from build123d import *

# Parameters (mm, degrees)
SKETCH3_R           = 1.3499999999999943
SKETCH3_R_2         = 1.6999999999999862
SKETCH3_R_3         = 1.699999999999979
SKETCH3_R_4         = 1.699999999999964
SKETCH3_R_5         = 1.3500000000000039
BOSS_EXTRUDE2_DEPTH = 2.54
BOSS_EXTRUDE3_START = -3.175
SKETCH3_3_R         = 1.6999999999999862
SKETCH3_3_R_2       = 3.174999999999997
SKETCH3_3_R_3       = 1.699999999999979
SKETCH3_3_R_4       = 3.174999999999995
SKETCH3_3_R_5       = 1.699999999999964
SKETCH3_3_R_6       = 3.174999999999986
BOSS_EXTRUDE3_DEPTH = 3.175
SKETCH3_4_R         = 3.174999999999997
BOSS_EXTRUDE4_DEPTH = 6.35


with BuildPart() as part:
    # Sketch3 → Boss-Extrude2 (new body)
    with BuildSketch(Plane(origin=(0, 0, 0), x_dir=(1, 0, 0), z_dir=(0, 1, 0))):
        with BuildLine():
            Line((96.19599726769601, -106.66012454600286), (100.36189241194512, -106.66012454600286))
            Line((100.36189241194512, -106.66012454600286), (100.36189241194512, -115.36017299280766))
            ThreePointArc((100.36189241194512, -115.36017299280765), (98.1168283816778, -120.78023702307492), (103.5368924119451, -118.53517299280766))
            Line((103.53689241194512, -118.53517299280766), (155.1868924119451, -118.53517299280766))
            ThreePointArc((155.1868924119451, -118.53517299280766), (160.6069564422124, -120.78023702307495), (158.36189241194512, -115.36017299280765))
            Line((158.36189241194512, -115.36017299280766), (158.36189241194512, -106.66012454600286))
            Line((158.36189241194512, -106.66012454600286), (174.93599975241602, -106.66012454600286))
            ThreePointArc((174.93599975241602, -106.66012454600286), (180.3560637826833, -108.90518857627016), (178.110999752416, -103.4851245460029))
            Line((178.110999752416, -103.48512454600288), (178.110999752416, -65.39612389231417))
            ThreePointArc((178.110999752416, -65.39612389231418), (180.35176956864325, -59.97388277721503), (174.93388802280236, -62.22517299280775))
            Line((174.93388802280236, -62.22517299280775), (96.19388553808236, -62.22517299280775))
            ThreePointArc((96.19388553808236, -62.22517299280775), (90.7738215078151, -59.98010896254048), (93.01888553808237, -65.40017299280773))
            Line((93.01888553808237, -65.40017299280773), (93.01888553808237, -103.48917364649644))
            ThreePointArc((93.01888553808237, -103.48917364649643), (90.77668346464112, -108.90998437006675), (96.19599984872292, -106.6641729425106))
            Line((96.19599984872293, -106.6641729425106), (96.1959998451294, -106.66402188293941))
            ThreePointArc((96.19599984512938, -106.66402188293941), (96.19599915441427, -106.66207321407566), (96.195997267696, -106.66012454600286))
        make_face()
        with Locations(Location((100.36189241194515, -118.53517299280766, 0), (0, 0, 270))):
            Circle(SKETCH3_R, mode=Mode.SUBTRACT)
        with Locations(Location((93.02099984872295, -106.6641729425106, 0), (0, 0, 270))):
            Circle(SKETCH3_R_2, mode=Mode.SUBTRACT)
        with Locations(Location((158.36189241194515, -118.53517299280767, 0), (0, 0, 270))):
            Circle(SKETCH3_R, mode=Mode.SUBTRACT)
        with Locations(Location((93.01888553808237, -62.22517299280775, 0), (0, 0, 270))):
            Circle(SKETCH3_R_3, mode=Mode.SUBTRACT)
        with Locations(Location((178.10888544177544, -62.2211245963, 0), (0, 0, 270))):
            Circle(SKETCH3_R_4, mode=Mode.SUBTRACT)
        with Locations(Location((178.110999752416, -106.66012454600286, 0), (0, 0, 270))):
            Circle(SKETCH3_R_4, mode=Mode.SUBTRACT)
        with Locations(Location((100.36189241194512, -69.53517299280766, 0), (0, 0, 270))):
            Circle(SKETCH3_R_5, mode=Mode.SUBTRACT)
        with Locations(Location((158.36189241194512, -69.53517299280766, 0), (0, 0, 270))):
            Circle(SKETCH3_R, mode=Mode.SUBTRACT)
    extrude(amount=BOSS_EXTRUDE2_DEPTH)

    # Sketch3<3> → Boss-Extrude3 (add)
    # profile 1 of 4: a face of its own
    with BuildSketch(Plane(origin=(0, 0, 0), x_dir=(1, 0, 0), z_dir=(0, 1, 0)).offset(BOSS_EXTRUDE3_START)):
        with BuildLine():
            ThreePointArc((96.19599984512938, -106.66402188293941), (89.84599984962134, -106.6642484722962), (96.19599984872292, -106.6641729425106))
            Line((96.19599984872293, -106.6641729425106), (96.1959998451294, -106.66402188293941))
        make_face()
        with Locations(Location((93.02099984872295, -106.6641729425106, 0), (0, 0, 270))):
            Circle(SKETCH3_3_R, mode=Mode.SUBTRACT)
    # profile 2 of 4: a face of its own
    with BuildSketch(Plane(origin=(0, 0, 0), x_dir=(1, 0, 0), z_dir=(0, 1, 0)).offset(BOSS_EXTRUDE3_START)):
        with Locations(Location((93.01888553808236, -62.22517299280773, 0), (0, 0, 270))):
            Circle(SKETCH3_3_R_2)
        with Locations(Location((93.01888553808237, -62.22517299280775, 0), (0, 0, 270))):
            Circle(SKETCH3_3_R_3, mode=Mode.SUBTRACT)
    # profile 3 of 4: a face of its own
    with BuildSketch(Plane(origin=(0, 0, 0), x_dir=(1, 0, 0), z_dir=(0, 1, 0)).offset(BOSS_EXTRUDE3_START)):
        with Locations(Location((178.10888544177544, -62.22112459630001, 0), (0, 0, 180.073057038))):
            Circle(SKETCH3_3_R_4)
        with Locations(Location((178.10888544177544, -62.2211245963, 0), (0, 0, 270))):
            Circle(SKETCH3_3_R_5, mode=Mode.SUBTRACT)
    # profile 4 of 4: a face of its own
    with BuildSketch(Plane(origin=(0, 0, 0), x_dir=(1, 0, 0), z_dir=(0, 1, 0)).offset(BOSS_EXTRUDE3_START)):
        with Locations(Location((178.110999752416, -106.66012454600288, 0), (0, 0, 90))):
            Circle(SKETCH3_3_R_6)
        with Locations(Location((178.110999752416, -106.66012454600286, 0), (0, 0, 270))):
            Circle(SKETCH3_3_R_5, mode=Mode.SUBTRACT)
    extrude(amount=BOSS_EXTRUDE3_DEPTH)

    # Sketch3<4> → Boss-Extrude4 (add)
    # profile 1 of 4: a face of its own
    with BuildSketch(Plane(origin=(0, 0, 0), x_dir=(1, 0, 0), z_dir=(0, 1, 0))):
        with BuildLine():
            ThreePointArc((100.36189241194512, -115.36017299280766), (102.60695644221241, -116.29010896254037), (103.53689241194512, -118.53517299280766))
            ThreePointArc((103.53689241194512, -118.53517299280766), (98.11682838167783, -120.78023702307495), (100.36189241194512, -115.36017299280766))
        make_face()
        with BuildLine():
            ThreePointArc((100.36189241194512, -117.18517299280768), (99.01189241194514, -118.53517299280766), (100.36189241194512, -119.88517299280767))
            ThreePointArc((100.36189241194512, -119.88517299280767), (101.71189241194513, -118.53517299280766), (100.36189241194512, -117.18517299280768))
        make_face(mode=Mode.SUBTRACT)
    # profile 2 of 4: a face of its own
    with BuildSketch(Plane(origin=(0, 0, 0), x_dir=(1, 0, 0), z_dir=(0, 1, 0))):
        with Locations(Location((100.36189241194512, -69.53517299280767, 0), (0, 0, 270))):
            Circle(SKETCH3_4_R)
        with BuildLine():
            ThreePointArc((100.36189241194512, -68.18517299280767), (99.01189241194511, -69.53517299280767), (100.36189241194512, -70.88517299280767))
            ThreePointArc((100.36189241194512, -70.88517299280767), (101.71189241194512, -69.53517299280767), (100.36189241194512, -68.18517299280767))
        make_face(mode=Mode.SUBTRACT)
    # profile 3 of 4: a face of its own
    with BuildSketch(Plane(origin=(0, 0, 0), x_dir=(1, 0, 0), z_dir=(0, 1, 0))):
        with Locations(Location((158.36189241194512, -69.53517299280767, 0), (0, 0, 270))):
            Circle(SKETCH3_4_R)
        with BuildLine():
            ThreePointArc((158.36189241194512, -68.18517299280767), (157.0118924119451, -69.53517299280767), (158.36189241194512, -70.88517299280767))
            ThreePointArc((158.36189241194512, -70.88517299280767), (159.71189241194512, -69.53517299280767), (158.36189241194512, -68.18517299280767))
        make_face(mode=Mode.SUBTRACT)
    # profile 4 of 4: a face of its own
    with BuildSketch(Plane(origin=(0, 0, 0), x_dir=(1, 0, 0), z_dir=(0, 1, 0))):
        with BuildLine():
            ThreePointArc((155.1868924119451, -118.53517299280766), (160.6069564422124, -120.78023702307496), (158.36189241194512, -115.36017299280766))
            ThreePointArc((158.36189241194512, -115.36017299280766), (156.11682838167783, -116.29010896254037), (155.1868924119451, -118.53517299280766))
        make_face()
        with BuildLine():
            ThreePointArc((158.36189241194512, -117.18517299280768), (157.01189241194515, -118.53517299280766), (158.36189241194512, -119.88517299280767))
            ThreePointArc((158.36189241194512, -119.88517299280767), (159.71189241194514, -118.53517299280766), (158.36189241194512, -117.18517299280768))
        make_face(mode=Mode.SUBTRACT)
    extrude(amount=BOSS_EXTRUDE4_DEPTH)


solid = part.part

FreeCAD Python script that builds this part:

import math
import FreeCAD as App
import Part
import Sketcher

V = App.Vector
Q = App.Units.Quantity

doc = App.newDocument("Part")
params = doc.addObject("Spreadsheet::Sheet", "Params")
for row, (alias, value) in enumerate([
    ("sketch1_width", "3.1000001 in"),
    ("sketch1_radius", "0.125 in"),
    ("pad1_length", "0.1 in"),
    ("sketch2_diameter", "0.25 in"),
    ("pad2_length", "0.125 in"),
    ("sketch3_diameter", "0.25 in"),
    ("pad3_length", "0.25 in"),
], start=1):
    params.set(f"A{row}", alias)
    params.set(f"B{row}", "=" + value)
    params.setAlias(f"B{row}", alias)

body = doc.addObject("PartDesign::Body", "Body")

# Sketch on XZ plane
sketch1 = body.newObject("Sketcher::SketchObject", "Sketch")
sketch1.AttachmentSupport = (doc.getObject("XZ_Plane"), [""])
sketch1.MapMode = "FlatFace"
sketch1.addGeometry([
    Part.LineSegment(V(96.196, 106.66012, 0), V(100.36189, 106.66012, 0)),  # 0
    Part.LineSegment(V(100.36189, 106.66012, 0), V(100.36189, 115.36017, 0)),  # 1
    Part.ArcOfCircle(Part.Circle(V(100.36189, 118.53517, 0), V(0, 0, 1), 3.175), math.radians(0), math.radians(270)),  # 2
    Part.LineSegment(V(103.53689, 118.53517, 0), V(155.18689, 118.53517, 0)),  # 3
    Part.ArcOfCircle(Part.Circle(V(158.36189, 118.53517, 0), V(0, 0, 1), 3.175), math.radians(-90), math.radians(180)),  # 4
    Part.LineSegment(V(158.36189, 115.36017, 0), V(158.36189, 106.66012, 0)),  # 5
    Part.LineSegment(V(158.36189, 106.66012, 0), V(174.936, 106.66012, 0)),  # 6
    Part.ArcOfCircle(Part.Circle(V(178.111, 106.66012, 0), V(0, 0, 1), 3.175), math.radians(-90), math.radians(180)),  # 7
    Part.LineSegment(V(178.111, 103.48512, 0), V(178.111, 65.39612, 0)),  # 8
    Part.ArcOfCircle(Part.Circle(V(178.10889, 62.22112, 0), V(0, 0, 1), 3.175), math.radians(180), math.radians(450)),  # 9
    Part.LineSegment(V(174.93389, 62.22517, 0), V(96.19389, 62.22517, 0)),  # 10
    Part.ArcOfCircle(Part.Circle(V(93.01889, 62.22517, 0), V(0, 0, 1), 3.175), math.radians(90), math.radians(360)),  # 11
    Part.LineSegment(V(93.01889, 65.40017, 0), V(93.01889, 103.48917, 0)),  # 12
    Part.ArcOfCircle(Part.Circle(V(93.021, 106.66417, 0), V(0, 0, 1), 3.175), math.radians(0), math.radians(270)),  # 13
    Part.LineSegment(V(96.196, 106.66417, 0), V(96.196, 106.66402, 0)),  # 14
    Part.ArcOfCircle(Part.Circle(V(93.021, 106.66417, 0), V(0, 0, 1), 3.175), math.radians(-0.07), math.radians(0)),  # 15
    Part.Circle(V(100.36189, 118.53517, 0), V(0, 0, 1), 1.35),  # 16
    Part.Circle(V(93.021, 106.66417, 0), V(0, 0, 1), 1.7),  # 17
    Part.Circle(V(158.36189, 118.53517, 0), V(0, 0, 1), 1.35),  # 18
    Part.Circle(V(178.111, 106.66012, 0), V(0, 0, 1), 1.7),  # 19
    Part.Circle(V(100.36189, 69.53517, 0), V(0, 0, 1), 1.35),  # 20
    Part.Circle(V(93.01889, 62.22517, 0), V(0, 0, 1), 1.7),  # 21
    Part.Circle(V(158.36189, 69.53517, 0), V(0, 0, 1), 1.35),  # 22
    Part.Circle(V(178.10889, 62.22112, 0), V(0, 0, 1), 1.7),  # 23
], False)
sketch1.addConstraint([
    Sketcher.Constraint("Coincident", 0, 2, 1, 1),
    Sketcher.Constraint("Coincident", 1, 2, 2, 2),
    Sketcher.Constraint("Coincident", 2, 1, 3, 1),
    Sketcher.Constraint("Coincident", 3, 2, 4, 2),
    Sketcher.Constraint("Coincident", 4, 1, 5, 1),
    Sketcher.Constraint("Coincident", 5, 2, 6, 1),
    Sketcher.Constraint("Coincident", 6, 2, 7, 2),
    Sketcher.Constraint("Coincident", 7, 1, 8, 1),
    Sketcher.Constraint("Coincident", 8, 2, 9, 2),
    Sketcher.Constraint("Coincident", 9, 1, 10, 1),
    Sketcher.Constraint("Coincident", 10, 2, 11, 2),
    Sketcher.Constraint("Coincident", 11, 1, 12, 1),
    Sketcher.Constraint("Coincident", 12, 2, 13, 2),
    Sketcher.Constraint("Coincident", 13, 1, 14, 1),
    Sketcher.Constraint("Coincident", 14, 2, 15, 2),
    Sketcher.Constraint("Coincident", 15, 1, 0, 1),
    Sketcher.Constraint("Horizontal", 0),
    Sketcher.Constraint("Vertical", 1),
    Sketcher.Constraint("Horizontal", 3),
    Sketcher.Constraint("Vertical", 5),
    Sketcher.Constraint("Horizontal", 6),
    Sketcher.Constraint("Vertical", 8),
    Sketcher.Constraint("Horizontal", 10),
    Sketcher.Constraint("Vertical", 12),
    Sketcher.Constraint("Vertical", 14),
    Sketcher.Constraint("Coincident", 15, 3, 13, 3),
    Sketcher.Constraint("Coincident", 16, 3, 2, 3),
    Sketcher.Constraint("Coincident", 17, 3, 13, 3),
    Sketcher.Constraint("Coincident", 18, 3, 4, 3),
    Sketcher.Constraint("Coincident", 19, 3, 7, 3),
    Sketcher.Constraint("Coincident", 21, 3, 11, 3),
    Sketcher.Constraint("Coincident", 23, 3, 9, 3),
    Sketcher.Constraint("Equal", 2, 4),
    Sketcher.Constraint("Equal", 4, 7),
    Sketcher.Constraint("Equal", 7, 9),
    Sketcher.Constraint("Equal", 9, 11),
    Sketcher.Constraint("Equal", 11, 13),
    Sketcher.Constraint("Equal", 16, 18),
    Sketcher.Constraint("Equal", 17, 19),
    Sketcher.Constraint("Equal", 18, 20),
    Sketcher.Constraint("Equal", 19, 21),
    Sketcher.Constraint("Equal", 20, 22),
    Sketcher.Constraint("Equal", 21, 23),
    Sketcher.Constraint("Horizontal", 2, 3, 4, 3),
    Sketcher.Constraint("Horizontal", 20, 3, 22, 3),
    Sketcher.Constraint("Horizontal", 19, 3, 0, 2),
    Sketcher.Constraint("Horizontal", 18, 3, 2, 1),
    Sketcher.Constraint("Horizontal", 0, 2, 5, 2),
    Sketcher.Constraint("Horizontal", 21, 3, 9, 1),
    Sketcher.Constraint("Horizontal", 17, 3, 13, 1),
    Sketcher.Constraint("Vertical", 16, 3, 20, 3),
    Sketcher.Constraint("Vertical", 18, 3, 22, 3),
    Sketcher.Constraint("Vertical", 20, 3, 0, 2),
    Sketcher.Constraint("Vertical", 22, 3, 4, 1),
    Sketcher.Constraint("Vertical", 19, 3, 7, 1),
    Sketcher.Constraint("Vertical", 21, 3, 11, 1),
    Sketcher.Constraint("Equal", 8, 12),
    Sketcher.Constraint("DistanceX", 10, 2, 10, 1, Q("3.1000001 in")),
    Sketcher.Constraint("Radius", 2, Q("0.125 in")),
    Sketcher.Constraint("Diameter", 16, Q("2.7 mm")),
    Sketcher.Constraint("Diameter", 17, Q("3.4 mm")),
    Sketcher.Constraint("DistanceX", 13, 3, 7, 3, Q("3.35 in")),
    Sketcher.Constraint("DistanceX", 3, 1, 3, 2, Q("51.65 mm")),
    Sketcher.Constraint("DistanceY", 8, 2, 8, 1, Q("38.089001 mm")),
    Sketcher.Constraint("DistanceY", 1, 1, 1, 2, Q("8.700048 mm")),
    Sketcher.Constraint("DistanceY", 14, 2, 14, 1, Q("0.000151 mm")),
    Sketcher.Constraint("DistanceX", -1, 1, 7, 3, Q("178.111 mm")),
    Sketcher.Constraint("DistanceY", 11, 3, 2, 3, Q("56.31 mm")),
    Sketcher.Constraint("DistanceY", 11, 3, 20, 3, Q("7.31 mm")),
    Sketcher.Constraint("DistanceX", 0, 1, 0, 2, Q("4.165895 mm")),
    Sketcher.Constraint("DistanceX", -1, 1, 9, 1, Q("174.933888 mm")),
    Sketcher.Constraint("DistanceY", -1, 1, 14, 2, Q("106.664022 mm")),
])
sketch1.setExpression("Constraints[57]", "Params.sketch1_width")
sketch1.setExpression("Constraints[58]", "Params.sketch1_radius")
pad1 = body.newObject("PartDesign::Pad", "Pad")
pad1.Profile = sketch1
pad1.setExpression("Length", "Params.pad1_length")
pad1.Reversed = True

# Sketch on XZ plane
sketch2 = body.newObject("Sketcher::SketchObject", "Sketch001")
sketch2.AttachmentSupport = (doc.getObject("XZ_Plane"), [""])
sketch2.MapMode = "FlatFace"
sketch2.AttachmentOffset = App.Placement(V(0, 0, 0.125 * 25.4), App.Rotation())
sketch2.addGeometry([
    Part.ArcOfCircle(Part.Circle(V(93.021, 106.66417, 0), V(0, 0, 1), 3.175), math.radians(0), math.radians(360)),  # 0
    Part.LineSegment(V(96.196, 106.66417, 0), V(96.196, 106.66402, 0)),  # 1
    Part.Circle(V(93.021, 106.66417, 0), V(0, 0, 1), 1.7),  # 2
    Part.Circle(V(93.01889, 62.22517, 0), V(0, 0, 1), 3.175),  # 3
    Part.Circle(V(93.01889, 62.22517, 0), V(0, 0, 1), 1.7),  # 4
    Part.Circle(V(178.10889, 62.22112, 0), V(0, 0, 1), 3.175),  # 5
    Part.Circle(V(178.10889, 62.22112, 0), V(0, 0, 1), 1.7),  # 6
    Part.Circle(V(178.111, 106.66012, 0), V(0, 0, 1), 3.175),  # 7
    Part.Circle(V(178.111, 106.66012, 0), V(0, 0, 1), 1.7),  # 8
], False)
sketch2.addConstraint([
    Sketcher.Constraint("Coincident", 0, 1, 1, 1),
    Sketcher.Constraint("Coincident", 1, 2, 0, 2),
    Sketcher.Constraint("Coincident", 2, 3, 0, 3),
    Sketcher.Constraint("Coincident", 4, 3, 3, 3),
    Sketcher.Constraint("Coincident", 6, 3, 5, 3),
    Sketcher.Constraint("Coincident", 8, 3, 7, 3),
    Sketcher.Constraint("Equal", 0, 3),
    Sketcher.Constraint("Equal", 2, 4),
    Sketcher.Constraint("Equal", 3, 5),
    Sketcher.Constraint("Equal", 4, 6),
    Sketcher.Constraint("Equal", 5, 7),
    Sketcher.Constraint("Equal", 6, 8),
    Sketcher.Constraint("Horizontal", 2, 3, 0, 1),
    Sketcher.Constraint("Diameter", 3, Q("0.25 in")),
    Sketcher.Constraint("Diameter", 2, Q("3.4 mm")),
    Sketcher.Constraint("DistanceX", 3, 3, 5, 3, Q("3.35 in")),
    Sketcher.Constraint("DistanceX", 0, 3, 7, 3, Q("3.35 in")),
    Sketcher.Constraint("DistanceY", 1, 2, 1, 1, Q("0.000151 mm")),
    Sketcher.Constraint("DistanceX", -1, 1, 0, 3, Q("93.021 mm")),
    Sketcher.Constraint("DistanceY", 3, 3, 0, 3, Q("44.439 mm")),
    Sketcher.Constraint("DistanceY", 5, 3, 7, 3, Q("44.439 mm")),
    Sketcher.Constraint("DistanceY", -1, 1, 1, 2, Q("106.664022 mm")),
    Sketcher.Constraint("DistanceY", 5, 3, 3, 3, Q("0.004048 mm")),
    Sketcher.Constraint("DistanceX", -1, 1, 3, 3, Q("93.018886 mm")),
])
sketch2.setExpression("Constraints[13]", "Params.sketch2_diameter")
pad2 = body.newObject("PartDesign::Pad", "Pad001")
pad2.Profile = sketch2
pad2.setExpression("Length", "Params.pad2_length")
pad2.Reversed = True

# Sketch on XZ plane
sketch3 = body.newObject("Sketcher::SketchObject", "Sketch002")
sketch3.AttachmentSupport = (doc.getObject("XZ_Plane"), [""])
sketch3.MapMode = "FlatFace"
sketch3.addGeometry([
    Part.Circle(V(100.4, 118.5, 0), V(0, 0, 1), 3.2),  # 0
    Part.Circle(V(100.4, 118.5, 0), V(0, 0, 1), 1.4),  # 1
    Part.Circle(V(100.4, 69.5, 0), V(0, 0, 1), 3.2),  # 2
    Part.Circle(V(100.4, 69.5, 0), V(0, 0, 1), 1.4),  # 3
    Part.Circle(V(158.4, 69.5, 0), V(0, 0, 1), 3.2),  # 4
    Part.Circle(V(158.4, 69.5, 0), V(0, 0, 1), 1.4),  # 5
    Part.Circle(V(158.4, 118.5, 0), V(0, 0, 1), 3.2),  # 6
    Part.Circle(V(158.4, 118.5, 0), V(0, 0, 1), 1.4),  # 7
], False)
sketch3.addConstraint([
    Sketcher.Constraint("Coincident", 1, 3, 0, 3),
    Sketcher.Constraint("Coincident", 3, 3, 2, 3),
    Sketcher.Constraint("Coincident", 5, 3, 4, 3),
    Sketcher.Constraint("Coincident", 7, 3, 6, 3),
    Sketcher.Constraint("Equal", 0, 2),
    Sketcher.Constraint("Equal", 1, 3),
    Sketcher.Constraint("Equal", 2, 4),
    Sketcher.Constraint("Equal", 3, 5),
    Sketcher.Constraint("Equal", 4, 6),
    Sketcher.Constraint("Equal", 5, 7),
    Sketcher.Constraint("Horizontal", 3, 3, 4, 3),
    Sketcher.Constraint("Horizontal", 1, 3, 6, 3),
    Sketcher.Constraint("Vertical", 1, 3, 2, 3),
    Sketcher.Constraint("Vertical", 5, 3, 6, 3),
    Sketcher.Constraint("Diameter", 0, Q("0.25 in")),
    Sketcher.Constraint("Diameter", 1, Q("2.7 mm")),
    Sketcher.Constraint("DistanceY", 2, 3, 0, 3, Q("49 mm")),
    Sketcher.Constraint("DistanceX", 2, 3, 4, 3, Q("58 mm")),
    Sketcher.Constraint("DistanceX", -1, 1, 0, 3, Q("100.361892 mm")),
    Sketcher.Constraint("DistanceY", -1, 1, 0, 3, Q("118.535173 mm")),
])
sketch3.setExpression("Constraints[14]", "Params.sketch3_diameter")
pad3 = body.newObject("PartDesign::Pad", "Pad002")
pad3.Profile = sketch3
pad3.setExpression("Length", "Params.pad3_length")
pad3.Reversed = True

doc.recompute()
